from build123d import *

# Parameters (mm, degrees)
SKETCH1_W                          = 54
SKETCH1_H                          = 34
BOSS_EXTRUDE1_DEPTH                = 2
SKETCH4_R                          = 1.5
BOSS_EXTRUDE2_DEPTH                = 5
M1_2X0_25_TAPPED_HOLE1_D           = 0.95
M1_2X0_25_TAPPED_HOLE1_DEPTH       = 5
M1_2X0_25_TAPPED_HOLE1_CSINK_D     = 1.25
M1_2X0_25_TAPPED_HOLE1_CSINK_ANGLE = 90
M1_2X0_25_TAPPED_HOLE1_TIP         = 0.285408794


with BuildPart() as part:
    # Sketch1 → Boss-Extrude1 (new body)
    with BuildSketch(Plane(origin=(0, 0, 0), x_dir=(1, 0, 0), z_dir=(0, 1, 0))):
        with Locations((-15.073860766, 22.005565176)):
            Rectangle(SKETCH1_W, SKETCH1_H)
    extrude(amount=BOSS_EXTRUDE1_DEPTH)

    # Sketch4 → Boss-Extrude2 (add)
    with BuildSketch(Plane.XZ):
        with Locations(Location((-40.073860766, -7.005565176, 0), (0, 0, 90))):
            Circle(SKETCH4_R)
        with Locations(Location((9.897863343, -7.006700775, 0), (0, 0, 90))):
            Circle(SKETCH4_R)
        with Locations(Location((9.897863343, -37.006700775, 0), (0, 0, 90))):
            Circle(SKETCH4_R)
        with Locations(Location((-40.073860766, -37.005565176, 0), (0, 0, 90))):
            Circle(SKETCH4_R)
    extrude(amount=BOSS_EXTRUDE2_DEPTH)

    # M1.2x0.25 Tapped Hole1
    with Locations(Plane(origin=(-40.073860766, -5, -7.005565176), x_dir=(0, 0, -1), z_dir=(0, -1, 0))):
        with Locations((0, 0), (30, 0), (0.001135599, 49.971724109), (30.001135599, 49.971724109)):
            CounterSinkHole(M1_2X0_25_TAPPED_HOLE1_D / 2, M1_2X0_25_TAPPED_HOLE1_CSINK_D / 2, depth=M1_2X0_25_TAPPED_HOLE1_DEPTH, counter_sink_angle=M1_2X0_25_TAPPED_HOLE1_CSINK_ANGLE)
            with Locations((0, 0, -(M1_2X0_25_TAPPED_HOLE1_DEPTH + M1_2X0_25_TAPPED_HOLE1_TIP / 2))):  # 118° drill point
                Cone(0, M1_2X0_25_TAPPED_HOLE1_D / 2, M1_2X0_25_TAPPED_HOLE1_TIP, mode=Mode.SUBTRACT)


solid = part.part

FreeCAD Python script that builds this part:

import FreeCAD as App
import Part
import Sketcher
from FreeCAD import Vector
Q = App.Units.Quantity


def add_polygon(sketch, points):
    """Adds a closed chain of lines whose ends are joined by coincident constraints."""
    first, n = sketch.GeometryCount, len(points)
    for a, b in zip(points, points[1:] + points[:1]):
        sketch.addGeometry(Part.LineSegment(App.Vector(*a, 0), App.Vector(*b, 0)), False)
    for i in range(n):
        sketch.addConstraint(Sketcher.Constraint("Coincident", first + i, 2, first + (i + 1) % n, 1))

doc = App.newDocument("Part")
body = doc.addObject("PartDesign::Body", "Body")

sketch1 = body.newObject("Sketcher::SketchObject", "Sketch")
sketch1.AttachmentSupport = (doc.getObject("XZ_Plane"), [""])
sketch1.MapMode = "FlatFace"
add_polygon(sketch1, [(-42, -39), (-42, -5), (12, -5), (12, -39)])
sketch1.addConstraint(Sketcher.Constraint("Vertical", 0))
sketch1.addConstraint(Sketcher.Constraint("Horizontal", 1))
sketch1.addConstraint(Sketcher.Constraint("Vertical", 2))
sketch1.addConstraint(Sketcher.Constraint("Horizontal", 3))
sketch1.addConstraint(Sketcher.Constraint("DistanceX", 1, 1, 1, 2, Q("54 mm")))
sketch1.addConstraint(Sketcher.Constraint("DistanceY", 0, 1, 0, 2, Q("34 mm")))
sketch1.addConstraint(Sketcher.Constraint("DistanceX", 0, 2, -1, 1, Q("42.073861 mm")))
sketch1.addConstraint(Sketcher.Constraint("DistanceY", 0, 2, -1, 1, Q("5.005565 mm")))
pad1 = body.newObject("PartDesign::Pad", "Pad")
pad1.Profile = sketch1
pad1.Length = 2
pad1.Reversed = True

sketch2 = body.newObject("Sketcher::SketchObject", "Sketch001")
sketch2.AttachmentSupport = (doc.getObject("XZ_Plane"), [""])
sketch2.MapMode = "FlatFace"
sketch2.addGeometry(Part.Circle(Vector(-40.1, -7, 0), Vector(0, 0, 1), 1.5), False)
sketch2.addGeometry(Part.Circle(Vector(9.9, -7, 0), Vector(0, 0, 1), 1.5), False)
sketch2.addGeometry(Part.Circle(Vector(9.9, -37, 0), Vector(0, 0, 1), 1.5), False)
sketch2.addGeometry(Part.Circle(Vector(-40.1, -37, 0), Vector(0, 0, 1), 1.5), False)
sketch2.addConstraint(Sketcher.Constraint("Equal", 0, 1))
sketch2.addConstraint(Sketcher.Constraint("Equal", 1, 2))
sketch2.addConstraint(Sketcher.Constraint("Equal", 2, 3))
sketch2.addConstraint(Sketcher.Constraint("Vertical", 1, 3, 2, 3))
sketch2.addConstraint(Sketcher.Constraint("Vertical", 0, 3, 3, 3))
sketch2.addConstraint(Sketcher.Constraint("Diameter", 0, Q("3 mm")))
sketch2.addConstraint(Sketcher.Constraint("DistanceY", 2, 3, 1, 3, Q("30 mm")))
sketch2.addConstraint(Sketcher.Constraint("DistanceY", 3, 3, 0, 3, Q("30 mm")))
sketch2.addConstraint(Sketcher.Constraint("DistanceY", 1, 3, -1, 1, Q("7.006701 mm")))
sketch2.addConstraint(Sketcher.Constraint("DistanceX", 0, 3, -1, 1, Q("40.073861 mm")))
sketch2.addConstraint(Sketcher.Constraint("DistanceY", 0, 3, -1, 1, Q("7.005565 mm")))
sketch2.addConstraint(Sketcher.Constraint("DistanceX", -1, 1, 1, 3, Q("9.897863 mm")))
pad2 = body.newObject("PartDesign::Pad", "Pad001")
pad2.Profile = sketch2
pad2.Length = 5

sketch3 = body.newObject("Sketcher::SketchObject", "Sketch002")
sketch3.AttachmentSupport = (doc.getObject("XZ_Plane"), [""])
sketch3.MapMode = "FlatFace"
sketch3.AttachmentOffset = App.Placement(Vector(0, 0, 5), App.Rotation())
sketch3.addGeometry(Part.Circle(Vector(-40.07, -7.01, 0), Vector(0, 0, 1), 0.47), False)
sketch3.addGeometry(Part.Circle(Vector(-40.07, -37.01, 0), Vector(0, 0, 1), 0.47), False)
sketch3.addGeometry(Part.Circle(Vector(9.9, -7.01, 0), Vector(0, 0, 1), 0.47), False)
sketch3.addGeometry(Part.Circle(Vector(9.9, -37.01, 0), Vector(0, 0, 1), 0.47), False)
sketch3.addConstraint(Sketcher.Constraint("Equal", 0, 1))
sketch3.addConstraint(Sketcher.Constraint("Equal", 1, 2))
sketch3.addConstraint(Sketcher.Constraint("Equal", 2, 3))
sketch3.addConstraint(Sketcher.Constraint("Vertical", 0, 3, 1, 3))
sketch3.addConstraint(Sketcher.Constraint("Vertical", 2, 3, 3, 3))
sketch3.addConstraint(Sketcher.Constraint("Diameter", 0, Q("0.95 mm")))
sketch3.addConstraint(Sketcher.Constraint("DistanceY", 1, 3, 0, 3, Q("30 mm")))
sketch3.addConstraint(Sketcher.Constraint("DistanceY", 3, 3, 2, 3, Q("30 mm")))
sketch3.addConstraint(Sketcher.Constraint("DistanceY", 2, 3, -1, 1, Q("7.006701 mm")))
sketch3.addConstraint(Sketcher.Constraint("DistanceX", 0, 3, -1, 1, Q("40.073861 mm")))
sketch3.addConstraint(Sketcher.Constraint("DistanceY", 0, 3, -1, 1, Q("7.005565 mm")))
sketch3.addConstraint(Sketcher.Constraint("DistanceX", -1, 1, 2, 3, Q("9.897863 mm")))
doc.recompute()
hole = body.newObject("PartDesign::Hole", "Hole")
hole.Profile = sketch3
hole.ThreadType = "None"
hole.Diameter = 0.95
hole.DepthType = "Dimension"
hole.Depth = 5
hole.DrillPoint = "Angled"
hole.DrillPointAngle = 118
hole.HoleCutType = "Countersink"
hole.HoleCutDiameter = 1.25
hole.HoleCutCountersinkAngle = 90

doc.recompute()
